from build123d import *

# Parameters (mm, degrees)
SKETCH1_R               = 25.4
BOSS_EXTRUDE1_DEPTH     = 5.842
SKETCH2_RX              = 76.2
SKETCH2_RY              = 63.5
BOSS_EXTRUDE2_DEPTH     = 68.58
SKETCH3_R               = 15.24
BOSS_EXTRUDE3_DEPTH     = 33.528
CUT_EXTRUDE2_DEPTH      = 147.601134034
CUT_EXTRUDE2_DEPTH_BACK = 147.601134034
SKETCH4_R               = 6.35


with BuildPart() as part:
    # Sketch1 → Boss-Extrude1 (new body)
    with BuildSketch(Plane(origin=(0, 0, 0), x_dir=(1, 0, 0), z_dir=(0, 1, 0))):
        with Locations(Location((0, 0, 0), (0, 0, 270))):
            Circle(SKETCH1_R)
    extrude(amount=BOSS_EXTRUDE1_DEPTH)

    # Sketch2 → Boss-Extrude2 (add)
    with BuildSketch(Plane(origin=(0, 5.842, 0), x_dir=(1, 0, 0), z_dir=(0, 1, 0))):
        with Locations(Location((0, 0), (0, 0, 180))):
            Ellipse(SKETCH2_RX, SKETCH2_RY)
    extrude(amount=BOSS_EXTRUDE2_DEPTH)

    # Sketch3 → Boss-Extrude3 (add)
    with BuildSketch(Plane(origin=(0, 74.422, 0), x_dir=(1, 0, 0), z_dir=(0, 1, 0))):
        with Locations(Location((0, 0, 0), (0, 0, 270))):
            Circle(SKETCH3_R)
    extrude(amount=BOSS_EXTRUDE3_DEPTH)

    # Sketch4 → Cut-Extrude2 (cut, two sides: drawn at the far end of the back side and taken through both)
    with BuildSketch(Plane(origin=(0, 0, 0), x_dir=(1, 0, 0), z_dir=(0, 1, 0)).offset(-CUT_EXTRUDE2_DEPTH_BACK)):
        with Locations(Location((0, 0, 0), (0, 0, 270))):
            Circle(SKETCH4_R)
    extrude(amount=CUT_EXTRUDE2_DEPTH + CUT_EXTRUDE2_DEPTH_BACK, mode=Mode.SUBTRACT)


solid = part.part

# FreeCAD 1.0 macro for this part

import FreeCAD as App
import Part
import Sketcher

V = App.Vector
Q = App.Units.Quantity

doc = App.newDocument("Part")
body = doc.addObject("PartDesign::Body", "Body")

# Sketch on XZ plane
sketch1 = body.newObject("Sketcher::SketchObject", "Sketch")
sketch1.AttachmentSupport = (doc.getObject("XZ_Plane"), [""])
sketch1.MapMode = "FlatFace"
sketch1.addGeometry(Part.Circle(V(0, 0, 0), V(0, 0, 1), 25), False)
sketch1.addConstraint(Sketcher.Constraint("Coincident", 0, 3, -1, 1))
sketch1.addConstraint(Sketcher.Constraint("Diameter", 0, Q("2 in")))
pad1 = body.newObject("PartDesign::Pad", "Pad")
pad1.Profile = sketch1
pad1.Length = Q("0.23 in")
pad1.Reversed = True

# Sketch on XZ plane
sketch2 = body.newObject("Sketcher::SketchObject", "Sketch001")
sketch2.AttachmentSupport = (doc.getObject("XZ_Plane"), [""])
sketch2.MapMode = "FlatFace"
sketch2.AttachmentOffset = App.Placement(V(0, 0, -0.23 * 25.4), App.Rotation())
sketch2.addGeometry(Part.Ellipse(V(-76.2, 0, 0), V(0, -63.5, 0), V(0, 0, 0)), False)
sketch2.addConstraint(Sketcher.Constraint("Block", 0))
pad2 = body.newObject("PartDesign::Pad", "Pad001")
pad2.Profile = sketch2
pad2.Length = Q("2.7 in")
pad2.Reversed = True

# Sketch on XZ plane
sketch3 = body.newObject("Sketcher::SketchObject", "Sketch002")
sketch3.AttachmentSupport = (doc.getObject("XZ_Plane"), [""])
sketch3.MapMode = "FlatFace"
sketch3.AttachmentOffset = App.Placement(V(0, 0, -2.93 * 25.4), App.Rotation())
sketch3.addGeometry(Part.Circle(V(0, 0, 0), V(0, 0, 1), 15), False)
sketch3.addConstraint(Sketcher.Constraint("Coincident", 0, 3, -1, 1))
sketch3.addConstraint(Sketcher.Constraint("Diameter", 0, Q("1.2 in")))
pad3 = body.newObject("PartDesign::Pad", "Pad002")
pad3.Profile = sketch3
pad3.Length = Q("1.32 in")
pad3.Reversed = True

# Sketch on XZ plane
sketch4 = body.newObject("Sketcher::SketchObject", "Sketch003")
sketch4.AttachmentSupport = (doc.getObject("XZ_Plane"), [""])
sketch4.MapMode = "FlatFace"
sketch4.addGeometry(Part.Circle(V(0, 0, 0), V(0, 0, 1), 6), False)
sketch4.addConstraint(Sketcher.Constraint("Coincident", 0, 3, -1, 1))
sketch4.addConstraint(Sketcher.Constraint("Diameter", 0, Q("0.5 in")))
pocket1 = body.newObject("PartDesign::Pocket", "Pocket")
pocket1.Profile = sketch4
pocket1.Type = "ThroughAll"
pocket1.Midplane = True

doc.recompute()
